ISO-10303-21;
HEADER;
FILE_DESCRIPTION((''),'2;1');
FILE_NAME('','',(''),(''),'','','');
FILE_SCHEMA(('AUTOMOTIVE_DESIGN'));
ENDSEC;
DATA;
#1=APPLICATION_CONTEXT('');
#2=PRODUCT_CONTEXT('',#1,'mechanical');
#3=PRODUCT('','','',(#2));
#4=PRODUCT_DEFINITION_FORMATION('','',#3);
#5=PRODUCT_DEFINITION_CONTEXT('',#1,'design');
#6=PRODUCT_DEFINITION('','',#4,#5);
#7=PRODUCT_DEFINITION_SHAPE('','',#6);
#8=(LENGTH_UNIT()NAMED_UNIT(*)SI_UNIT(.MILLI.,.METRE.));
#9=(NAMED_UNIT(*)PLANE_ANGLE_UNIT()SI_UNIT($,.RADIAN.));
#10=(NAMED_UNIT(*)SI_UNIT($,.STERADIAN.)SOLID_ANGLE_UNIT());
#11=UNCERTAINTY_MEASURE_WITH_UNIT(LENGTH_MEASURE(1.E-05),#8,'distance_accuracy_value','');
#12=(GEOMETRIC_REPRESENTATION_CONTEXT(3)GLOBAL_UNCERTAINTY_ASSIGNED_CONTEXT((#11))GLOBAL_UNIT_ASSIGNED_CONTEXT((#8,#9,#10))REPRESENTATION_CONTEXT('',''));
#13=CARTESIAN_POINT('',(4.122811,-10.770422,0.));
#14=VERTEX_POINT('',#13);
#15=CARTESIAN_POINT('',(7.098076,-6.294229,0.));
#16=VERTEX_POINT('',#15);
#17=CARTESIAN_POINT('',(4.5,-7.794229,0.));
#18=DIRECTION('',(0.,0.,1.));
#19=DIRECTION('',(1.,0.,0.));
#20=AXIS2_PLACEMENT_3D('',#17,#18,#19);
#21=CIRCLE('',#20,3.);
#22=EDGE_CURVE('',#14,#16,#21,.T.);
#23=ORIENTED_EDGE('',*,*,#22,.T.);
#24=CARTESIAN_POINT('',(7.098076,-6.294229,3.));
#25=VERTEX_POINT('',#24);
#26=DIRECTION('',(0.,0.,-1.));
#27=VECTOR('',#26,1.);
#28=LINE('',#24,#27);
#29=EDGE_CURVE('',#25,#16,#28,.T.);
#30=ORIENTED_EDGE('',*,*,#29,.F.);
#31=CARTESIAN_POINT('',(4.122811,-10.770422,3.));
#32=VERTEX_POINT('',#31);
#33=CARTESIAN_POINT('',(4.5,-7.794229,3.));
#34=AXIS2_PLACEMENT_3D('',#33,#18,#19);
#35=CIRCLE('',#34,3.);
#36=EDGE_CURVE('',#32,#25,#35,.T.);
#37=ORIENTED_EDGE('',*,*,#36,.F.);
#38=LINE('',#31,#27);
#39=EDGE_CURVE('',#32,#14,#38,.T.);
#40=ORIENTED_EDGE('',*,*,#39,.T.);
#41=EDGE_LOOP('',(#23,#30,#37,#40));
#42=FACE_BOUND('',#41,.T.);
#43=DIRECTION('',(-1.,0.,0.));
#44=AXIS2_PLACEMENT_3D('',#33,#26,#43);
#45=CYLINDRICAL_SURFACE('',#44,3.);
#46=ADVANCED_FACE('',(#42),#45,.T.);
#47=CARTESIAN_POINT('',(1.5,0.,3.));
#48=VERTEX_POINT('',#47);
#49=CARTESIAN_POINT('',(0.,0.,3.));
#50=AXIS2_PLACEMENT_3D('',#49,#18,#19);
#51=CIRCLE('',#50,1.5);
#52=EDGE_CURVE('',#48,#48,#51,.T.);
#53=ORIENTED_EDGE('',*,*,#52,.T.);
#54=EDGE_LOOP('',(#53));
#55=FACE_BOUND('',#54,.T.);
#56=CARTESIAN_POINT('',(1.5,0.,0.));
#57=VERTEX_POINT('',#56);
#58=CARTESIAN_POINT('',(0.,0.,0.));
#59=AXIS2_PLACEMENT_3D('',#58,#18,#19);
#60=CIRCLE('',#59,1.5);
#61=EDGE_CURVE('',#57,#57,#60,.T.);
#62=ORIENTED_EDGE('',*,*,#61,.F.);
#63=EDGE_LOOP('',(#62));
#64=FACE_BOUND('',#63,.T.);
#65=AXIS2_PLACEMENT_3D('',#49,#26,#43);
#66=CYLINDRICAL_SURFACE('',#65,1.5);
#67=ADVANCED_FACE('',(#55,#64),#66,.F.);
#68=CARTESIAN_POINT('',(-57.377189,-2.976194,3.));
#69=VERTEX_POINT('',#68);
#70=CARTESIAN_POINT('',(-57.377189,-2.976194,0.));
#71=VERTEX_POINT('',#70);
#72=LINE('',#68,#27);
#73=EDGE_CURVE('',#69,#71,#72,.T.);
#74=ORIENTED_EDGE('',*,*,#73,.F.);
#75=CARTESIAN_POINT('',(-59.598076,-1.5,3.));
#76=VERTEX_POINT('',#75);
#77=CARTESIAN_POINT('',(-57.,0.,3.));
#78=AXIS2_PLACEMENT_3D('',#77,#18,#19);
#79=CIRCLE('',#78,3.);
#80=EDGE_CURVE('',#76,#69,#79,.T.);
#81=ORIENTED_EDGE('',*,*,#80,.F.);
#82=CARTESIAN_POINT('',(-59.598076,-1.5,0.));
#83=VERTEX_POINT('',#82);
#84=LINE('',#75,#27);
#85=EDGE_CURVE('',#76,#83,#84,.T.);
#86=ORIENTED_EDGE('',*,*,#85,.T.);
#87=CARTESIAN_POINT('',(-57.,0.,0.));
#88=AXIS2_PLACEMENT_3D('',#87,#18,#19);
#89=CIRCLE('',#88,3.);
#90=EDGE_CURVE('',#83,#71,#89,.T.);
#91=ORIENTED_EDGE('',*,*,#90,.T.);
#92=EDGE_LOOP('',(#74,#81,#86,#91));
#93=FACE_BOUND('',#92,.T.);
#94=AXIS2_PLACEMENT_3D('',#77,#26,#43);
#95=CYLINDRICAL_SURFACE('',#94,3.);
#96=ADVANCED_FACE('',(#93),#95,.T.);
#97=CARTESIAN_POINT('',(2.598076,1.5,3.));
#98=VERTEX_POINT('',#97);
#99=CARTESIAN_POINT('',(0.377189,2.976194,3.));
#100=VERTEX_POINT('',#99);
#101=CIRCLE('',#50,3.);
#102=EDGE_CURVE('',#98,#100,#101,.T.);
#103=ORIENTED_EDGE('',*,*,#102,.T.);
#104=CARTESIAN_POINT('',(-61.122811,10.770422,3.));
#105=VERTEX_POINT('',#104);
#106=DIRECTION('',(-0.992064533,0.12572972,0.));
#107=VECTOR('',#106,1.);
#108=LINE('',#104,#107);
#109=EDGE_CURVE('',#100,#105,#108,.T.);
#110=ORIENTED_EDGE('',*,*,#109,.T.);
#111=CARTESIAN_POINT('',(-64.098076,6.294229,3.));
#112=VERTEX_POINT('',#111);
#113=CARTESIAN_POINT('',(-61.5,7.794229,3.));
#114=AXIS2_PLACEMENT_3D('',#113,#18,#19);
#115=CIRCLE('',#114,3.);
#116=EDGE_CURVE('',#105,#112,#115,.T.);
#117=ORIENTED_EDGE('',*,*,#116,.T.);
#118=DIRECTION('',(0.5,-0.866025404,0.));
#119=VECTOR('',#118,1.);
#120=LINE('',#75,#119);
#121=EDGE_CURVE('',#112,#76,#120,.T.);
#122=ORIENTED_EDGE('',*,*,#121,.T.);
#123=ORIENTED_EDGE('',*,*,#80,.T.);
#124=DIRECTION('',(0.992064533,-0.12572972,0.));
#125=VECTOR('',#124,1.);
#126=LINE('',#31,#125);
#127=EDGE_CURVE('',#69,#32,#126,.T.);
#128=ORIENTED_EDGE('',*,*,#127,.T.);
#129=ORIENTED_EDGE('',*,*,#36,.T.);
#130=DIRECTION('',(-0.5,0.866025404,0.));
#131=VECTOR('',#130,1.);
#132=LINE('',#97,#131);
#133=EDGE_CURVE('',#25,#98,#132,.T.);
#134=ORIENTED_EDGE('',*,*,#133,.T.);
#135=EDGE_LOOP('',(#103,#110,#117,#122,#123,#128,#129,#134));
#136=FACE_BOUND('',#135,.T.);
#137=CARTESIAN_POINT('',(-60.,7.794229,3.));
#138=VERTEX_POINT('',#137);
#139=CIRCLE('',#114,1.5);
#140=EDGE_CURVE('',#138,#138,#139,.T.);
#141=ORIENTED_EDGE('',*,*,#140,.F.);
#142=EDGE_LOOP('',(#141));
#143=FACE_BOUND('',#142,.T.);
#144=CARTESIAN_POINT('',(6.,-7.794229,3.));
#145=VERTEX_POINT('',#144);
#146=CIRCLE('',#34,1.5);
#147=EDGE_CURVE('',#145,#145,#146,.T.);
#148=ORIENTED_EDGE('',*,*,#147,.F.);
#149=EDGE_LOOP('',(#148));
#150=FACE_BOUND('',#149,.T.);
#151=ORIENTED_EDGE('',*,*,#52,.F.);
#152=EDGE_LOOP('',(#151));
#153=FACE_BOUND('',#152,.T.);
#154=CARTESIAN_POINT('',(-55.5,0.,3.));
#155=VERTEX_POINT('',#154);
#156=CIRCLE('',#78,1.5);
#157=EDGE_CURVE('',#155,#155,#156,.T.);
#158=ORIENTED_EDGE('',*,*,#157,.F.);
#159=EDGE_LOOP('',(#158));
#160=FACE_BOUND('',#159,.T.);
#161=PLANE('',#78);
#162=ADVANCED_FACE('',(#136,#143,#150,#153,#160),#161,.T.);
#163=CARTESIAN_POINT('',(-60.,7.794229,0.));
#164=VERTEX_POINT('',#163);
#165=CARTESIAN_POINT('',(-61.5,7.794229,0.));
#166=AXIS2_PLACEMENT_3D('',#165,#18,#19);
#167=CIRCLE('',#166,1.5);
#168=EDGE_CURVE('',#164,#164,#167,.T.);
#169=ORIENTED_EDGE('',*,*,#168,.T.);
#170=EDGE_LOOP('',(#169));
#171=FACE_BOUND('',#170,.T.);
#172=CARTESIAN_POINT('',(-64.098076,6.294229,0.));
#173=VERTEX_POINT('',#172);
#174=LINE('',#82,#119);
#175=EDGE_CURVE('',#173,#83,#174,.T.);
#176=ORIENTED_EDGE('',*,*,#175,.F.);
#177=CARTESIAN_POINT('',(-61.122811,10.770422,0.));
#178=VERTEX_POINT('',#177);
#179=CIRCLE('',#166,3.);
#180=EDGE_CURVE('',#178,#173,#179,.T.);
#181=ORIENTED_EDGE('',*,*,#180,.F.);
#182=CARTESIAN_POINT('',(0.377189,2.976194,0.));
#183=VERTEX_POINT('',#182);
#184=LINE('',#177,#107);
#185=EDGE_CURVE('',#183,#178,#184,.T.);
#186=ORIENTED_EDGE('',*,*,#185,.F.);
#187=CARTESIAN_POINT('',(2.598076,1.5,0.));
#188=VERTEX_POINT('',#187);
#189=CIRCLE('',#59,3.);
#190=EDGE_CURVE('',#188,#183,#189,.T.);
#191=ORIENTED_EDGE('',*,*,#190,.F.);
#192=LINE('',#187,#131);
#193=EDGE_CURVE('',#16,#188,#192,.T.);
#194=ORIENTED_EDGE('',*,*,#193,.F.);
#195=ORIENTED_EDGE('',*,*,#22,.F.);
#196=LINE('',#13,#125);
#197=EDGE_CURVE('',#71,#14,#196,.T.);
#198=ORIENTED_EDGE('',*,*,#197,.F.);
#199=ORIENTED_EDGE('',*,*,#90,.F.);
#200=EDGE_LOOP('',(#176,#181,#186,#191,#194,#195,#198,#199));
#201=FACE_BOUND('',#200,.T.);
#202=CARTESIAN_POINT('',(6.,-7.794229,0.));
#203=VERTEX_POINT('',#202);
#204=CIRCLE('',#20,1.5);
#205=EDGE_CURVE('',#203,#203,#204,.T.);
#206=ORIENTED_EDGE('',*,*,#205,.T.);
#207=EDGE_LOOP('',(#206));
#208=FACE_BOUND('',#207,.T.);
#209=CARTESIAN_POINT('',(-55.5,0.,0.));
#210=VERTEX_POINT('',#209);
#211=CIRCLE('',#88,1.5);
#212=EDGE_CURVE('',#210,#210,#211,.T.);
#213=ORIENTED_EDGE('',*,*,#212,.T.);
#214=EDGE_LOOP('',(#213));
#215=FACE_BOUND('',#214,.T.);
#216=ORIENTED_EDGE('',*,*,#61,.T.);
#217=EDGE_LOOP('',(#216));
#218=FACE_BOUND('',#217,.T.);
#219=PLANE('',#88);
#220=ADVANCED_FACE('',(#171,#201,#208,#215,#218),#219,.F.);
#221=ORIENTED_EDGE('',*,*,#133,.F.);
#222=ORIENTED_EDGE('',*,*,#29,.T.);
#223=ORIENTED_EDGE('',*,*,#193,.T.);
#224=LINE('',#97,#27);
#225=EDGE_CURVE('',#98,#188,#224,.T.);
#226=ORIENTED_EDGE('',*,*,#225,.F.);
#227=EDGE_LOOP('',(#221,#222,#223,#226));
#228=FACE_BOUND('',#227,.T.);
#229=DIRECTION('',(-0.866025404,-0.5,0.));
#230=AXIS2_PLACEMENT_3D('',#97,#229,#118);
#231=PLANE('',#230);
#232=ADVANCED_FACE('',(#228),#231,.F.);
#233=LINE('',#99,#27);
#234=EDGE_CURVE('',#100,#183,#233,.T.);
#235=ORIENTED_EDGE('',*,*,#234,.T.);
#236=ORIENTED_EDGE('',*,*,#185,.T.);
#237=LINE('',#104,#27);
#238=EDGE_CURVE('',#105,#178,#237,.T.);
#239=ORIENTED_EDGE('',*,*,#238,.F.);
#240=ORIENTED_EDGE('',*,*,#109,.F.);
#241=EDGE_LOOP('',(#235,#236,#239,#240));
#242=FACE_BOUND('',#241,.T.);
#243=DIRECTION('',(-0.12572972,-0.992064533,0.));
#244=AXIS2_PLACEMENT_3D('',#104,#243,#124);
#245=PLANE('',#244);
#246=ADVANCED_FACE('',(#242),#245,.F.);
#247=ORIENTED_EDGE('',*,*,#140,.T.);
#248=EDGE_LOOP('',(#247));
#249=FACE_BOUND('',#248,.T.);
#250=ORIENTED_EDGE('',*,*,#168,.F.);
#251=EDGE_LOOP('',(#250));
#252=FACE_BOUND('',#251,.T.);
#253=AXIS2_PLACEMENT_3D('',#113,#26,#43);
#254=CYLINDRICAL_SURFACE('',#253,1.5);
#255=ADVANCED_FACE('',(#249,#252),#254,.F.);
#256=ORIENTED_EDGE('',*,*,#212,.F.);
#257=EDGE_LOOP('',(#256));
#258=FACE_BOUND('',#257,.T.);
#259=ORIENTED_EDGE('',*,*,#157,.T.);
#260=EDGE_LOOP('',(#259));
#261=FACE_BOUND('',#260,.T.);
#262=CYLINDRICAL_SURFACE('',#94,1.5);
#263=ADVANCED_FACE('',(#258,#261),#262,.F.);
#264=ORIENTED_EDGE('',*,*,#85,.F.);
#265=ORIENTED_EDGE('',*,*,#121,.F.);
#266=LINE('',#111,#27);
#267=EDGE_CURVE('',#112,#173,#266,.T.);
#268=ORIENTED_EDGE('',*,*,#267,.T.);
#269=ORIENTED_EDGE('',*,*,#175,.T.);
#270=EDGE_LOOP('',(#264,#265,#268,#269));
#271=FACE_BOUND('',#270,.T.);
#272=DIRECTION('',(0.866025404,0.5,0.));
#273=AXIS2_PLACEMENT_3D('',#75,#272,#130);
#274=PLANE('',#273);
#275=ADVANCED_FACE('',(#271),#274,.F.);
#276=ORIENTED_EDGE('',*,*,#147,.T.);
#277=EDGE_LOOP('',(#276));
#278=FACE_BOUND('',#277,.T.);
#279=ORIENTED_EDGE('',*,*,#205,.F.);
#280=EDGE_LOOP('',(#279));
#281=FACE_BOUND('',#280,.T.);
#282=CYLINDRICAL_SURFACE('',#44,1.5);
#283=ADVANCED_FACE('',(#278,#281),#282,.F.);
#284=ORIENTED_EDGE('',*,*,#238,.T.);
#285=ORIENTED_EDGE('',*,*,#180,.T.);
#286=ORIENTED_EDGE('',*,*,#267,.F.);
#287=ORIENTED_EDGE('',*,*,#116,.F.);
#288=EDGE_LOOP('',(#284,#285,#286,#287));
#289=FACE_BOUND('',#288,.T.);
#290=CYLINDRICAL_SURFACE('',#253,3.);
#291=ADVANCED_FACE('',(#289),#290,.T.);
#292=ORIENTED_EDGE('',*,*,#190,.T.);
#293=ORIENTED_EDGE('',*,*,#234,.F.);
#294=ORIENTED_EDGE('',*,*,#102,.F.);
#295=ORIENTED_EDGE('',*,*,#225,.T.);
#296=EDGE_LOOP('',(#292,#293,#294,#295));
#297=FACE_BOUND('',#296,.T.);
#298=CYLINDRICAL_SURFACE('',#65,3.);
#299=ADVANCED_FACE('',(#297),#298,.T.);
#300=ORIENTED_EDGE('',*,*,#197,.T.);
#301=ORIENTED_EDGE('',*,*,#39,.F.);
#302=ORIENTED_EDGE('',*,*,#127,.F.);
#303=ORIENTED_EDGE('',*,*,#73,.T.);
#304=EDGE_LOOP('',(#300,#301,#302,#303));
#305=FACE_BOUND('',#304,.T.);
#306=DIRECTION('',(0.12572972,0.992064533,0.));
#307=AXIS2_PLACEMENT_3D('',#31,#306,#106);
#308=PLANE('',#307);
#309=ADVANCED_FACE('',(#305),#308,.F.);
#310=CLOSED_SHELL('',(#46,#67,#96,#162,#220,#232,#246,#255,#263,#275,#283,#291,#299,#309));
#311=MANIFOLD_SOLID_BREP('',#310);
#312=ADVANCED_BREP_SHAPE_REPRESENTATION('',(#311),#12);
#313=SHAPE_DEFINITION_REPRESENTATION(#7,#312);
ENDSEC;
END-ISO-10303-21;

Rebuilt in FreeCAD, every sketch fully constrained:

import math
import FreeCAD as App
import Part
import Sketcher
Q = App.Units.Quantity

doc = App.newDocument("Part")
params = doc.addObject("Spreadsheet::Sheet", "Params")
for row, (alias, value) in enumerate([
    ("sketch1_diameter", "3 mm"),
    ("sketch1_radius", "3 mm"),
    ("sketch1_length", "9 mm"),
    ("pad1_length", "3 mm"),
], start=1):
    params.set(f"A{row}", alias)
    params.set(f"B{row}", "=" + value)
    params.setAlias(f"B{row}", alias)

body = doc.addObject("PartDesign::Body", "Body")

# Sketch on XY plane
sketch1 = doc.addObject("Sketcher::SketchObject", "Sketch")
body.addObject(sketch1)
sketch1.AttachmentSupport = (doc.XY_Plane, [""])
sketch1.MapMode = "FlatFace"
sketch1.addGeometry([
    Part.LineSegment(App.Vector(0.4, 3, 0), App.Vector(-61.1, 10.8, 0)),  # 0
    Part.ArcOfCircle(Part.Circle(App.Vector(-61.5, 7.8, 0), App.Vector(0, 0, 1), 3), math.radians(83), math.radians(210)),  # 1
    Part.LineSegment(App.Vector(-64.1, 6.3, 0), App.Vector(-59.6, -1.5, 0)),  # 2
    Part.ArcOfCircle(Part.Circle(App.Vector(-57, 0, 0), App.Vector(0, 0, 1), 3), math.radians(-150), math.radians(-97)),  # 3
    Part.LineSegment(App.Vector(-57.4, -3, 0), App.Vector(4.1, -10.8, 0)),  # 4
    Part.ArcOfCircle(Part.Circle(App.Vector(4.5, -7.8, 0), App.Vector(0, 0, 1), 3), math.radians(-97), math.radians(30)),  # 5
    Part.LineSegment(App.Vector(7.1, -6.3, 0), App.Vector(2.6, 1.5, 0)),  # 6
    Part.ArcOfCircle(Part.Circle(App.Vector(0, 0, 0), App.Vector(0, 0, 1), 3), math.radians(30), math.radians(83)),  # 7
    Part.Circle(App.Vector(4.5, -7.8, 0), App.Vector(0, 0, 1), 1.5),  # 8
    Part.Circle(App.Vector(0, 0, 0), App.Vector(0, 0, 1), 1.5),  # 9
    Part.Circle(App.Vector(-57, 0, 0), App.Vector(0, 0, 1), 1.5),  # 10
    Part.Circle(App.Vector(-61.5, 7.8, 0), App.Vector(0, 0, 1), 1.5),  # 11
], False)
sketch1.addConstraint([
    Sketcher.Constraint("Tangent", 0, 2, 1, 1),
    Sketcher.Constraint("Tangent", 1, 2, 2, 1),
    Sketcher.Constraint("Tangent", 2, 2, 3, 1),
    Sketcher.Constraint("Tangent", 3, 2, 4, 1),
    Sketcher.Constraint("Tangent", 4, 2, 5, 1),
    Sketcher.Constraint("Tangent", 5, 2, 6, 1),
    Sketcher.Constraint("Tangent", 6, 2, 7, 1),
    Sketcher.Constraint("Tangent", 7, 2, 0, 1),
    Sketcher.Constraint("Coincident", 7, 3, -1, 1),
    Sketcher.Constraint("Coincident", 9, 3, -1, 1),
    Sketcher.Constraint("Coincident", 8, 3, 5, 3),
    Sketcher.Constraint("Coincident", 10, 3, 3, 3),
    Sketcher.Constraint("Coincident", 11, 3, 1, 3),
    Sketcher.Constraint("Equal", 1, 3),
    Sketcher.Constraint("Equal", 3, 5),
    Sketcher.Constraint("Equal", 5, 7),
    Sketcher.Constraint("Equal", 8, 9),
    Sketcher.Constraint("Equal", 9, 10),
    Sketcher.Constraint("Equal", 10, 11),
    Sketcher.Constraint("PointOnObject", 3, 3, -1),
    Sketcher.Constraint("Parallel", 0, 4),
    Sketcher.Constraint("Parallel", 2, 6),
    Sketcher.Constraint("Diameter", 8, 3.0),
    Sketcher.Constraint("Radius", 1, 3.0),
    Sketcher.Constraint("Angle", 2, Q("-60 deg")),
    Sketcher.Constraint("Distance", 2, 9.0),
    Sketcher.Constraint("DistanceX", 3, 3, -1, 1, 57.0),
])
sketch1.setExpression("Constraints[22]", "Params.sketch1_diameter")
sketch1.setExpression("Constraints[23]", "Params.sketch1_radius")
sketch1.setExpression("Constraints[25]", "Params.sketch1_length")
pad1 = doc.addObject("PartDesign::Pad", "Pad")
body.addObject(pad1)
pad1.Profile = sketch1
pad1.setExpression("Length", "Params.pad1_length")

doc.recompute()
